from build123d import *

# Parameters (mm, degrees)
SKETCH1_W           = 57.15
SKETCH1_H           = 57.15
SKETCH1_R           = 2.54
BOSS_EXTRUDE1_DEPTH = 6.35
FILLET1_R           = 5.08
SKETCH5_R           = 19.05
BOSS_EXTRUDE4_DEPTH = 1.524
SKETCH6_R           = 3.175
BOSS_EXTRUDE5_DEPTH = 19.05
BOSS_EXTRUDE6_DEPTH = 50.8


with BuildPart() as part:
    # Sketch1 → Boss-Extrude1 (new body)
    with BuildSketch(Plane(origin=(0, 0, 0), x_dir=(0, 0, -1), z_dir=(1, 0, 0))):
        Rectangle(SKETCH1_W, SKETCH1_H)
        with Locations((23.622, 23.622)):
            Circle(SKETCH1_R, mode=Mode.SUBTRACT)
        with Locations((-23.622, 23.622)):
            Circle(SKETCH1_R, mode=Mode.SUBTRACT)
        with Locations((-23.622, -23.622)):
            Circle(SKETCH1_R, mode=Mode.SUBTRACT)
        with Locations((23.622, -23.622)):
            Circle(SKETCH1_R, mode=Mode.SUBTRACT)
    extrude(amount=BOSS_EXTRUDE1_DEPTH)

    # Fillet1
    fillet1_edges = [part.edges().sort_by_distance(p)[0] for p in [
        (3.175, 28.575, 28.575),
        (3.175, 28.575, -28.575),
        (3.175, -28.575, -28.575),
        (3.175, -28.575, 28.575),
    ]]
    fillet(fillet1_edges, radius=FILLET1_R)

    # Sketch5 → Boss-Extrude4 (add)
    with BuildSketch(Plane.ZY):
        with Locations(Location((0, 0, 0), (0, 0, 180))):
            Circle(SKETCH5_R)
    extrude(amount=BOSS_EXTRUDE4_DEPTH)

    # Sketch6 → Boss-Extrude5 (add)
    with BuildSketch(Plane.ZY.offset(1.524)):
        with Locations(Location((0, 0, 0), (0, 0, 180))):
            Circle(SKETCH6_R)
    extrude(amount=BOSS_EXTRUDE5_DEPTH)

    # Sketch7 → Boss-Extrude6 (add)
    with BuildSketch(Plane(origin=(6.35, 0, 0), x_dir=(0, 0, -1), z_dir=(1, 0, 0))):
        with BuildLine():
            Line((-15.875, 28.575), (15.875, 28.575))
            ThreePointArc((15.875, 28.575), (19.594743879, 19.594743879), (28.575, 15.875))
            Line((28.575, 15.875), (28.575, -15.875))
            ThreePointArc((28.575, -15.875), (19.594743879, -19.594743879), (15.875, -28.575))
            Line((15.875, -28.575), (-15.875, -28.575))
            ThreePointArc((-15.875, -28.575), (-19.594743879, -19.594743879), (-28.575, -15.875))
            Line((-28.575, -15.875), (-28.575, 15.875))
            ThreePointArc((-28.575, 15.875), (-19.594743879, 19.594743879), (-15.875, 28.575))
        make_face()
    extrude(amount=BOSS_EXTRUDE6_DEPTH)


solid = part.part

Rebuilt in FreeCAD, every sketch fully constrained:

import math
import FreeCAD as App
import Part
import Sketcher
from FreeCAD import Vector
Q = App.Units.Quantity


def edges_at(feature, points):
    """Names of the edges that pass closest to the given points."""
    edges = feature.Shape.Edges
    near = lambda p: min(range(len(edges)), key=lambda i: edges[i].distToShape(Part.Vertex(*p))[0])
    return sorted({f"Edge{near(p) + 1}" for p in points})


def add_polygon(sketch, points):
    """Adds a closed chain of lines whose ends are joined by coincident constraints."""
    first, n = sketch.GeometryCount, len(points)
    for a, b in zip(points, points[1:] + points[:1]):
        sketch.addGeometry(Part.LineSegment(App.Vector(*a, 0), App.Vector(*b, 0)), False)
    for i in range(n):
        sketch.addConstraint(Sketcher.Constraint("Coincident", first + i, 2, first + (i + 1) % n, 1))

doc = App.newDocument("Part")
params = doc.addObject("Spreadsheet::Sheet", "Params")
for row, (alias, value) in enumerate([
    ("sketch1_diameter", "0.2 in"),
    ("sketch1_width", "2.25 in"),
    ("pad1_length", "0.25 in"),
    ("fillet_radius", "0.2 in"),
    ("sketch2_diameter", "1.5 in"),
    ("pad2_length", "0.06 in"),
    ("sketch3_diameter", "0.25 in"),
    ("pad3_length", "0.75 in"),
    ("sketch4_radius", "0.5 in"),
    ("sketch4_width", "1.25 in"),
    ("pad4_length", "2 in"),
], start=1):
    params.set(f"A{row}", alias)
    params.set(f"B{row}", "=" + value)
    params.setAlias(f"B{row}", alias)

body = doc.addObject("PartDesign::Body", "Body")

sketch1 = body.newObject("Sketcher::SketchObject", "Sketch")
sketch1.AttachmentSupport = (doc.getObject("YZ_Plane"), [""])
sketch1.MapMode = "FlatFace"
add_polygon(sketch1, [(28.6, 28.6), (-28.6, 28.6), (-28.6, -28.6), (28.6, -28.6)])
sketch1.addGeometry(Part.Circle(Vector(-23.6, 23.6, 0), Vector(0, 0, 1), 2.5), False)
sketch1.addGeometry(Part.Circle(Vector(-23.6, -23.6, 0), Vector(0, 0, 1), 2.5), False)
sketch1.addGeometry(Part.Circle(Vector(23.6, 23.6, 0), Vector(0, 0, 1), 2.5), False)
sketch1.addGeometry(Part.Circle(Vector(23.6, -23.6, 0), Vector(0, 0, 1), 2.5), False)
sketch1.addConstraint(Sketcher.Constraint("Horizontal", 0))
sketch1.addConstraint(Sketcher.Constraint("Vertical", 1))
sketch1.addConstraint(Sketcher.Constraint("Horizontal", 2))
sketch1.addConstraint(Sketcher.Constraint("Vertical", 3))
sketch1.addConstraint(Sketcher.Constraint("Equal", 4, 5))
sketch1.addConstraint(Sketcher.Constraint("Equal", 5, 6))
sketch1.addConstraint(Sketcher.Constraint("Equal", 6, 7))
sketch1.addConstraint(Sketcher.Constraint("Symmetric", 5, 3, 6, 3, -1, 1))
sketch1.addConstraint(Sketcher.Constraint("Symmetric", 4, 3, 7, 3, -1, 1))
sketch1.addConstraint(Sketcher.Constraint("Symmetric", 0, 2, 2, 2, -1, 1))
sketch1.addConstraint(Sketcher.Constraint("Symmetric", 4, 3, 6, 3, -2))
sketch1.addConstraint(Sketcher.Constraint("Equal", 2, 1))
sketch1.addConstraint(Sketcher.Constraint("Diameter", 4, Q("0.2 in")))
sketch1.addConstraint(Sketcher.Constraint("DistanceX", 0, 2, 0, 1, Q("2.25 in")))
sketch1.addConstraint(Sketcher.Constraint("DistanceX", 4, 3, -1, 1, Q("0.93 in")))
sketch1.addConstraint(Sketcher.Constraint("DistanceY", -1, 1, 4, 3, Q("0.93 in")))
sketch1.setExpression("Constraints[16]", "Params.sketch1_diameter")
sketch1.setExpression("Constraints[17]", "Params.sketch1_width")
pad1 = body.newObject("PartDesign::Pad", "Pad")
pad1.Profile = sketch1
pad1.setExpression("Length", "Params.pad1_length")
doc.recompute()

fillet = body.newObject("PartDesign::Fillet", "Fillet")
fillet.Base = (pad1, edges_at(pad1, [
    (3.175, 28.575, 28.575),
    (3.175, 28.575, -28.575),
    (3.175, -28.575, -28.575),
    (3.175, -28.575, 28.575),
]))
fillet.setExpression("Radius", "Params.fillet_radius")

sketch2 = body.newObject("Sketcher::SketchObject", "Sketch001")
sketch2.AttachmentSupport = (doc.getObject("YZ_Plane"), [""])
sketch2.MapMode = "FlatFace"
sketch2.addGeometry(Part.Circle(Vector(0, 0, 0), Vector(0, 0, 1), 19), False)
sketch2.addConstraint(Sketcher.Constraint("Coincident", 0, 3, -1, 1))
sketch2.addConstraint(Sketcher.Constraint("Diameter", 0, Q("1.5 in")))
sketch2.setExpression("Constraints[1]", "Params.sketch2_diameter")
pad2 = body.newObject("PartDesign::Pad", "Pad001")
pad2.Profile = sketch2
pad2.setExpression("Length", "Params.pad2_length")
pad2.Reversed = True

sketch3 = body.newObject("Sketcher::SketchObject", "Sketch002")
sketch3.AttachmentSupport = (doc.getObject("YZ_Plane"), [""])
sketch3.MapMode = "FlatFace"
sketch3.AttachmentOffset = App.Placement(Vector(0, 0, -0.06 * 25.4), App.Rotation())
sketch3.addGeometry(Part.Circle(Vector(0, 0, 0), Vector(0, 0, 1), 3.2), False)
sketch3.addConstraint(Sketcher.Constraint("Coincident", 0, 3, -1, 1))
sketch3.addConstraint(Sketcher.Constraint("Diameter", 0, Q("0.25 in")))
sketch3.setExpression("Constraints[1]", "Params.sketch3_diameter")
pad3 = body.newObject("PartDesign::Pad", "Pad002")
pad3.Profile = sketch3
pad3.setExpression("Length", "Params.pad3_length")
pad3.Reversed = True

sketch4 = body.newObject("Sketcher::SketchObject", "Sketch003")
sketch4.AttachmentSupport = (doc.getObject("YZ_Plane"), [""])
sketch4.MapMode = "FlatFace"
sketch4.AttachmentOffset = App.Placement(Vector(0, 0, 0.25 * 25.4), App.Rotation())
sketch4.addGeometry(Part.LineSegment(Vector(29, -16, 0), Vector(29, 16, 0)), False)
sketch4.addGeometry(Part.ArcOfCircle(Part.Circle(Vector(29, 29, 0), Vector(0, 0, 1), 13), math.radians(180), math.radians(270)), False)
sketch4.addGeometry(Part.LineSegment(Vector(16, 29, 0), Vector(-16, 29, 0)), False)
sketch4.addGeometry(Part.ArcOfCircle(Part.Circle(Vector(-29, 29, 0), Vector(0, 0, 1), 13), math.radians(-90), math.radians(0)), False)
sketch4.addGeometry(Part.LineSegment(Vector(-29, 16, 0), Vector(-29, -16, 0)), False)
sketch4.addGeometry(Part.ArcOfCircle(Part.Circle(Vector(-29, -29, 0), Vector(0, 0, 1), 13), math.radians(0), math.radians(90)), False)
sketch4.addGeometry(Part.LineSegment(Vector(-16, -29, 0), Vector(16, -29, 0)), False)
sketch4.addGeometry(Part.ArcOfCircle(Part.Circle(Vector(29, -29, 0), Vector(0, 0, 1), 13), math.radians(90), math.radians(180)), False)
sketch4.addConstraint(Sketcher.Constraint("Coincident", 0, 2, 1, 2))
sketch4.addConstraint(Sketcher.Constraint("Coincident", 1, 1, 2, 1))
sketch4.addConstraint(Sketcher.Constraint("Coincident", 2, 2, 3, 2))
sketch4.addConstraint(Sketcher.Constraint("Coincident", 3, 1, 4, 1))
sketch4.addConstraint(Sketcher.Constraint("Coincident", 4, 2, 5, 2))
sketch4.addConstraint(Sketcher.Constraint("Coincident", 5, 1, 6, 1))
sketch4.addConstraint(Sketcher.Constraint("Coincident", 6, 2, 7, 2))
sketch4.addConstraint(Sketcher.Constraint("Coincident", 7, 1, 0, 1))
sketch4.addConstraint(Sketcher.Constraint("Vertical", 0))
sketch4.addConstraint(Sketcher.Constraint("Horizontal", 2))
sketch4.addConstraint(Sketcher.Constraint("Vertical", 4))
sketch4.addConstraint(Sketcher.Constraint("Horizontal", 6))
sketch4.addConstraint(Sketcher.Constraint("Equal", 1, 3))
sketch4.addConstraint(Sketcher.Constraint("Equal", 3, 5))
sketch4.addConstraint(Sketcher.Constraint("Equal", 5, 7))
sketch4.addConstraint(Sketcher.Constraint("Symmetric", 1, 3, 5, 3, -1, 1))
sketch4.addConstraint(Sketcher.Constraint("Symmetric", 3, 3, 7, 3, -1, 1))
sketch4.addConstraint(Sketcher.Constraint("Symmetric", 1, 3, 3, 3, -2))
sketch4.addConstraint(Sketcher.Constraint("Horizontal", 3, 3, 1, 1))
sketch4.addConstraint(Sketcher.Constraint("Horizontal", 7, 3, 5, 1))
sketch4.addConstraint(Sketcher.Constraint("Vertical", 7, 3, 0, 2))
sketch4.addConstraint(Sketcher.Constraint("Vertical", 5, 3, 3, 1))
sketch4.addConstraint(Sketcher.Constraint("Equal", 6, 0))
sketch4.addConstraint(Sketcher.Constraint("Radius", 1, Q("0.5 in")))
sketch4.addConstraint(Sketcher.Constraint("DistanceX", 2, 2, 2, 1, Q("1.25 in")))
sketch4.setExpression("Constraints[23]", "Params.sketch4_radius")
sketch4.setExpression("Constraints[24]", "Params.sketch4_width")
pad4 = body.newObject("PartDesign::Pad", "Pad003")
pad4.Profile = sketch4
pad4.setExpression("Length", "Params.pad4_length")

doc.recompute()
